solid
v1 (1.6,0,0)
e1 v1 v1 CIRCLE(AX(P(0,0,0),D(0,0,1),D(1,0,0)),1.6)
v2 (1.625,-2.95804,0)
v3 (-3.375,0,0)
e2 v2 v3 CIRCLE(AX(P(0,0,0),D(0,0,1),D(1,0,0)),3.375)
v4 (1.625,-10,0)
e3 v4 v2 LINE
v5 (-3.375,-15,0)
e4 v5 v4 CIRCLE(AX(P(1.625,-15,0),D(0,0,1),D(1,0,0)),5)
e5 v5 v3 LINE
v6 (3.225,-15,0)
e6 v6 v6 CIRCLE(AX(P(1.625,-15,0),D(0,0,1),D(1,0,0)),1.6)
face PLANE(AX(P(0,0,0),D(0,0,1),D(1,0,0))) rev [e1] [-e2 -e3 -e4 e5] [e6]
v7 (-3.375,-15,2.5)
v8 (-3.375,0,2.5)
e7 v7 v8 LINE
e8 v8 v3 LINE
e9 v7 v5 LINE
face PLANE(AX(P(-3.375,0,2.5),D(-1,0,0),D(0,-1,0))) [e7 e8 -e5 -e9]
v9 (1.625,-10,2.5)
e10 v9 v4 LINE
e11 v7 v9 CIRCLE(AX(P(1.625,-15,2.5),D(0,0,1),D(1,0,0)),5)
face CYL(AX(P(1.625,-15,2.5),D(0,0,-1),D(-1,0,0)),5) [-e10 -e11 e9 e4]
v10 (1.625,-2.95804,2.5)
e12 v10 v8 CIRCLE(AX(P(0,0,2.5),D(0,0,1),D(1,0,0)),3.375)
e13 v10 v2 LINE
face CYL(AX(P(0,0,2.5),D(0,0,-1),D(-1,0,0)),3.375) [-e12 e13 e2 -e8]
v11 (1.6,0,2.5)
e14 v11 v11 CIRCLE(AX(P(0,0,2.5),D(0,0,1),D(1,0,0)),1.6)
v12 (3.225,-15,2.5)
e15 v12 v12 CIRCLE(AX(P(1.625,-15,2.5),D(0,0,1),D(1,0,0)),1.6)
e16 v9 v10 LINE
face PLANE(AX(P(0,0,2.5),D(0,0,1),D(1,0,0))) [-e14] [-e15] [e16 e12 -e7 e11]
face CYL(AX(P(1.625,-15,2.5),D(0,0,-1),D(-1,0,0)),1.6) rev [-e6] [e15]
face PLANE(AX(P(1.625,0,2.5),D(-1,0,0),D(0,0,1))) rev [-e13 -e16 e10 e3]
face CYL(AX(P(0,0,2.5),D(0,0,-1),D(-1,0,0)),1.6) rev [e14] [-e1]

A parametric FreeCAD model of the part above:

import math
import FreeCAD as App
import Part
import Sketcher
from FreeCAD import Vector
Q = App.Units.Quantity

doc = App.newDocument("Part")
params = doc.addObject("Spreadsheet::Sheet", "Params")
for row, (alias, value) in enumerate([
    ("sketch1_radius", "5 mm"),
    ("sketch1_diameter", "3.2 mm"),
    ("sketch1_height", "15 mm"),
    ("pad1_length", "2.5 mm"),
], start=1):
    params.set(f"A{row}", alias)
    params.set(f"B{row}", "=" + value)
    params.setAlias(f"B{row}", alias)

body = doc.addObject("PartDesign::Body", "Body")

# Sketch on XY plane
sketch1 = body.newObject("Sketcher::SketchObject", "Sketch")
sketch1.AttachmentSupport = (doc.getObject("XY_Plane"), [""])
sketch1.MapMode = "FlatFace"
sketch1.addGeometry(Part.LineSegment(Vector(1.625, -10, 0), Vector(1.625, -2.95804, 0)), False)
sketch1.addGeometry(Part.ArcOfCircle(Part.Circle(Vector(0, 0, 0), Vector(0, 0, 1), 3.375), math.radians(-61.217795), math.radians(180)), False)
sketch1.addGeometry(Part.LineSegment(Vector(-3.375, 0, 0), Vector(-3.375, -15, 0)), False)
sketch1.addGeometry(Part.ArcOfCircle(Part.Circle(Vector(1.625, -15, 0), Vector(0, 0, 1), 5), math.radians(180), math.radians(450)), False)
sketch1.addGeometry(Part.Circle(Vector(1.625, -15, 0), Vector(0, 0, 1), 1.6), False)
sketch1.addGeometry(Part.Circle(Vector(0, 0, 0), Vector(0, 0, 1), 1.6), False)
sketch1.addConstraint(Sketcher.Constraint("Coincident", 0, 2, 1, 1))
sketch1.addConstraint(Sketcher.Constraint("Tangent", 1, 2, 2, 1))
sketch1.addConstraint(Sketcher.Constraint("Tangent", 2, 2, 3, 1))
sketch1.addConstraint(Sketcher.Constraint("Coincident", 3, 2, 0, 1))
sketch1.addConstraint(Sketcher.Constraint("Vertical", 0))
sketch1.addConstraint(Sketcher.Constraint("Vertical", 2))
sketch1.addConstraint(Sketcher.Constraint("Coincident", 1, 3, -1, 1))
sketch1.addConstraint(Sketcher.Constraint("Coincident", 5, 3, -1, 1))
sketch1.addConstraint(Sketcher.Constraint("Coincident", 4, 3, 3, 3))
sketch1.addConstraint(Sketcher.Constraint("Equal", 4, 5))
sketch1.addConstraint(Sketcher.Constraint("Vertical", 4, 3, 0, 2))
sketch1.addConstraint(Sketcher.Constraint("Radius", 3, Q("5 mm")))
sketch1.addConstraint(Sketcher.Constraint("Diameter", 4, Q("3.2 mm")))
sketch1.addConstraint(Sketcher.Constraint("DistanceY", 2, 2, 2, 1, Q("15 mm")))
sketch1.addConstraint(Sketcher.Constraint("Radius", 1, Q("3.375 mm")))
sketch1.setExpression("Constraints[11]", "Params.sketch1_radius")
sketch1.setExpression("Constraints[12]", "Params.sketch1_diameter")
sketch1.setExpression("Constraints[13]", "Params.sketch1_height")
pad1 = body.newObject("PartDesign::Pad", "Pad")
pad1.Profile = sketch1
pad1.setExpression("Length", "Params.pad1_length")

doc.recompute()
